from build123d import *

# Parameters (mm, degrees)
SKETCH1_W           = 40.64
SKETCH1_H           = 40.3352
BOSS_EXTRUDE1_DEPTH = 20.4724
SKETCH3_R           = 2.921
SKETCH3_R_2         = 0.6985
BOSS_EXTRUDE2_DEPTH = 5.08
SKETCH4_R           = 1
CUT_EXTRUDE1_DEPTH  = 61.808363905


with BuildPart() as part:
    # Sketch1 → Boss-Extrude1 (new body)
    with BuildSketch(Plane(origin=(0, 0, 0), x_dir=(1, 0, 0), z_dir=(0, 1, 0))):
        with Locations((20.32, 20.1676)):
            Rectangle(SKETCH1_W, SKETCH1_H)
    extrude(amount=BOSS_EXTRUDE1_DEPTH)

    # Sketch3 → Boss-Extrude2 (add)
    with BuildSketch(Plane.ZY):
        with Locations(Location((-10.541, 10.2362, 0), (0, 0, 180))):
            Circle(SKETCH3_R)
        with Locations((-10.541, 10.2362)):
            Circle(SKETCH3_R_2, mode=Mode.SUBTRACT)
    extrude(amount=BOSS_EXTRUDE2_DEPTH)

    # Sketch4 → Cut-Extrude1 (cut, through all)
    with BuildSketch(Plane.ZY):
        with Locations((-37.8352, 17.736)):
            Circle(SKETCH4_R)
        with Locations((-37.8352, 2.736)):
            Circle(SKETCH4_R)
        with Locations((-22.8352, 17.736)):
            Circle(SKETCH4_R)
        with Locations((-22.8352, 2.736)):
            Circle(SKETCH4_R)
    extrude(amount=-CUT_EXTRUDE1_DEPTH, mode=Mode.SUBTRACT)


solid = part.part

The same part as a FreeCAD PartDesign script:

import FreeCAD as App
import Part
import Sketcher

V = App.Vector
Q = App.Units.Quantity

doc = App.newDocument("Part")
body = doc.addObject("PartDesign::Body", "Body")

# Sketch on XZ plane
sketch1 = body.newObject("Sketcher::SketchObject", "Sketch")
sketch1.AttachmentSupport = (doc.getObject("XZ_Plane"), [""])
sketch1.MapMode = "FlatFace"
sketch1.addGeometry([
    Part.LineSegment(V(0, -40, 0), V(0, 0, 0)),
    Part.LineSegment(V(0, 0, 0), V(41, 0, 0)),
    Part.LineSegment(V(41, 0, 0), V(41, -40, 0)),
    Part.LineSegment(V(41, -40, 0), V(0, -40, 0)),
], False)
sketch1.addConstraint([
    Sketcher.Constraint("Coincident", 0, 2, 1, 1),
    Sketcher.Constraint("Coincident", 1, 2, 2, 1),
    Sketcher.Constraint("Coincident", 2, 2, 3, 1),
    Sketcher.Constraint("Coincident", 3, 2, 0, 1),
    Sketcher.Constraint("Vertical", 0),
    Sketcher.Constraint("Horizontal", 1),
    Sketcher.Constraint("Vertical", 2),
    Sketcher.Constraint("Horizontal", 3),
    Sketcher.Constraint("Coincident", 0, 2, -1, 1),
    Sketcher.Constraint("DistanceX", 1, 1, 1, 2, Q("1.6 in")),
    Sketcher.Constraint("DistanceY", 0, 1, 0, 2, Q("1.588 in")),
])
pad1 = body.newObject("PartDesign::Pad", "Pad")
pad1.Profile = sketch1
pad1.Length = Q("0.806 in")
pad1.Reversed = True

# Sketch on YZ plane
sketch2 = body.newObject("Sketcher::SketchObject", "Sketch001")
sketch2.AttachmentSupport = (doc.getObject("YZ_Plane"), [""])
sketch2.MapMode = "FlatFace"
sketch2.addGeometry([
    Part.Circle(V(10.2, -10.5, 0), V(0, 0, 1), 2.9),
    Part.Circle(V(10.2, -10.5, 0), V(0, 0, 1), 0.7),
], False)
sketch2.addConstraint([
    Sketcher.Constraint("Coincident", 1, 3, 0, 3),
    Sketcher.Constraint("Diameter", 0, Q("0.23 in")),
    Sketcher.Constraint("Diameter", 1, Q("0.055 in")),
    Sketcher.Constraint("DistanceX", -1, 1, 0, 3, Q("0.403 in")),
    Sketcher.Constraint("DistanceY", 0, 3, -1, 1, Q("0.415 in")),
])
pad2 = body.newObject("PartDesign::Pad", "Pad001")
pad2.Profile = sketch2
pad2.Length = Q("0.2 in")
pad2.Reversed = True

# Sketch on YZ plane
sketch3 = body.newObject("Sketcher::SketchObject", "Sketch002")
sketch3.AttachmentSupport = (doc.getObject("YZ_Plane"), [""])
sketch3.MapMode = "FlatFace"
sketch3.addGeometry([
    Part.Circle(V(17.7, -37.8, 0), V(0, 0, 1), 1),
    Part.Circle(V(2.7, -37.8, 0), V(0, 0, 1), 1),
    Part.Circle(V(17.7, -22.8, 0), V(0, 0, 1), 1),
    Part.Circle(V(2.7, -22.8, 0), V(0, 0, 1), 1),
], False)
sketch3.addConstraint([
    Sketcher.Constraint("Equal", 0, 1),
    Sketcher.Constraint("Equal", 1, 2),
    Sketcher.Constraint("Equal", 2, 3),
    Sketcher.Constraint("Horizontal", 0, 3, 1, 3),
    Sketcher.Constraint("Horizontal", 2, 3, 3, 3),
    Sketcher.Constraint("Vertical", 0, 3, 2, 3),
    Sketcher.Constraint("Vertical", 1, 3, 3, 3),
    Sketcher.Constraint("Diameter", 0, 2.0),
    Sketcher.Constraint("DistanceX", -1, 1, 0, 3, 17.736),
    Sketcher.Constraint("DistanceY", 0, 3, -1, 1, 37.8352),
    Sketcher.Constraint("DistanceX", -1, 1, 1, 3, 2.736),
    Sketcher.Constraint("DistanceY", 2, 3, -1, 1, 22.8352),
])
pocket1 = body.newObject("PartDesign::Pocket", "Pocket")
pocket1.Profile = sketch3
pocket1.Type = "ThroughAll"
pocket1.Reversed = True

doc.recompute()
